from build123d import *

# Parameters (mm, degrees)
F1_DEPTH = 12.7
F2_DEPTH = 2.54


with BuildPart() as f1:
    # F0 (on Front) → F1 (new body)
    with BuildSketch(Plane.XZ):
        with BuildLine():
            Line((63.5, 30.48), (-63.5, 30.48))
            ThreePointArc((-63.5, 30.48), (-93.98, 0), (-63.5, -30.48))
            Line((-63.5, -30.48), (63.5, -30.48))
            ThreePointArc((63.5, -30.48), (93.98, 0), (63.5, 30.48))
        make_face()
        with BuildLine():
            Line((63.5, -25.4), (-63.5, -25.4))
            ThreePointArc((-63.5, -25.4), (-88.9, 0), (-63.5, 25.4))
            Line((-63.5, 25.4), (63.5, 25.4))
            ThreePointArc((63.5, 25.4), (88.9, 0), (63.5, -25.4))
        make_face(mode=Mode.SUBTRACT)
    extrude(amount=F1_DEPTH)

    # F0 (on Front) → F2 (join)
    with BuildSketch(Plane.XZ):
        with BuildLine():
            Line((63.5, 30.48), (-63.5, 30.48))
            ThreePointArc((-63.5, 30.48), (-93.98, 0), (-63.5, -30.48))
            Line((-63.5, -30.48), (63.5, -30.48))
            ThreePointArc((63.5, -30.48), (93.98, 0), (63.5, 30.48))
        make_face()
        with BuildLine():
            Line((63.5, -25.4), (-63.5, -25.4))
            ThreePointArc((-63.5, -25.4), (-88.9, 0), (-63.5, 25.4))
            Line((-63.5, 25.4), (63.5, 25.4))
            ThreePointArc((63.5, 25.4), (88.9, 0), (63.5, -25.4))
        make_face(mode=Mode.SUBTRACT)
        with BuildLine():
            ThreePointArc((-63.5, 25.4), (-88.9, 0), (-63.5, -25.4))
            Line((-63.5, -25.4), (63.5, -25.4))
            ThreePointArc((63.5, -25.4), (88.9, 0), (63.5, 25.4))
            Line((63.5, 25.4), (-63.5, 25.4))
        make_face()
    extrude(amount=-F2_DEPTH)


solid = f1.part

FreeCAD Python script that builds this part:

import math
import FreeCAD as App
import Part
import Sketcher
Q = App.Units.Quantity

doc = App.newDocument("Part")
body = doc.addObject("PartDesign::Body", "Body")

# Sketch on XZ plane
sketch1 = doc.addObject("Sketcher::SketchObject", "Sketch")
body.addObject(sketch1)
sketch1.AttachmentSupport = (doc.XZ_Plane, [""])
sketch1.MapMode = "FlatFace"
sketch1.addGeometry(Part.LineSegment(App.Vector(64, 30, 0), App.Vector(-64, 30, 0)), False)
sketch1.addGeometry(Part.ArcOfCircle(Part.Circle(App.Vector(-64, 0, 0), App.Vector(0, 0, 1), 30), math.radians(90), math.radians(270)), False)
sketch1.addGeometry(Part.LineSegment(App.Vector(-64, -30, 0), App.Vector(64, -30, 0)), False)
sketch1.addGeometry(Part.ArcOfCircle(Part.Circle(App.Vector(64, 0, 0), App.Vector(0, 0, 1), 30), math.radians(-90), math.radians(90)), False)
sketch1.addGeometry(Part.ArcOfCircle(Part.Circle(App.Vector(64, 0, 0), App.Vector(0, 0, 1), 25), math.radians(-90), math.radians(90)), False)
sketch1.addGeometry(Part.LineSegment(App.Vector(64, -25, 0), App.Vector(-64, -25, 0)), False)
sketch1.addGeometry(Part.ArcOfCircle(Part.Circle(App.Vector(-64, 0, 0), App.Vector(0, 0, 1), 25), math.radians(90), math.radians(270)), False)
sketch1.addGeometry(Part.LineSegment(App.Vector(-64, 25, 0), App.Vector(64, 25, 0)), False)
sketch1.addConstraint(Sketcher.Constraint("Tangent", 0, 2, 1, 1))
sketch1.addConstraint(Sketcher.Constraint("Tangent", 1, 2, 2, 1))
sketch1.addConstraint(Sketcher.Constraint("Tangent", 2, 2, 3, 1))
sketch1.addConstraint(Sketcher.Constraint("Tangent", 3, 2, 0, 1))
sketch1.addConstraint(Sketcher.Constraint("Tangent", 4, 1, 5, 1))
sketch1.addConstraint(Sketcher.Constraint("Tangent", 5, 2, 6, 2))
sketch1.addConstraint(Sketcher.Constraint("Tangent", 6, 1, 7, 1))
sketch1.addConstraint(Sketcher.Constraint("Tangent", 7, 2, 4, 2))
sketch1.addConstraint(Sketcher.Constraint("Horizontal", 0))
sketch1.addConstraint(Sketcher.Constraint("Horizontal", 2))
sketch1.addConstraint(Sketcher.Constraint("Horizontal", 5))
sketch1.addConstraint(Sketcher.Constraint("Horizontal", 7))
sketch1.addConstraint(Sketcher.Constraint("Coincident", 4, 3, 3, 3))
sketch1.addConstraint(Sketcher.Constraint("Symmetric", 1, 3, 3, 3, -1, 1))
sketch1.addConstraint(Sketcher.Constraint("Vertical", 6, 3, 0, 2))
sketch1.addConstraint(Sketcher.Constraint("Radius", 4, Q("1 in")))
sketch1.addConstraint(Sketcher.Constraint("Radius", 1, Q("1.2 in")))
sketch1.addConstraint(Sketcher.Constraint("DistanceX", 0, 2, 0, 1, Q("5 in")))
pad1 = doc.addObject("PartDesign::Pad", "Pad")
body.addObject(pad1)
pad1.Profile = sketch1
pad1.Length = Q("0.5 in")

# Sketch on XZ plane
sketch2 = doc.addObject("Sketcher::SketchObject", "Sketch001")
body.addObject(sketch2)
sketch2.AttachmentSupport = (doc.XZ_Plane, [""])
sketch2.MapMode = "FlatFace"
sketch2.addGeometry(Part.LineSegment(App.Vector(64, 30, 0), App.Vector(-64, 30, 0)), False)
sketch2.addGeometry(Part.ArcOfCircle(Part.Circle(App.Vector(-64, 0, 0), App.Vector(0, 0, 1), 30), math.radians(90), math.radians(270)), False)
sketch2.addGeometry(Part.LineSegment(App.Vector(-64, -30, 0), App.Vector(64, -30, 0)), False)
sketch2.addGeometry(Part.ArcOfCircle(Part.Circle(App.Vector(64, 0, 0), App.Vector(0, 0, 1), 30), math.radians(-90), math.radians(90)), False)
sketch2.addConstraint(Sketcher.Constraint("Tangent", 0, 2, 1, 1))
sketch2.addConstraint(Sketcher.Constraint("Tangent", 1, 2, 2, 1))
sketch2.addConstraint(Sketcher.Constraint("Tangent", 2, 2, 3, 1))
sketch2.addConstraint(Sketcher.Constraint("Tangent", 3, 2, 0, 1))
sketch2.addConstraint(Sketcher.Constraint("Horizontal", 0))
sketch2.addConstraint(Sketcher.Constraint("Horizontal", 2))
sketch2.addConstraint(Sketcher.Constraint("Symmetric", 1, 3, 3, 3, -1, 1))
sketch2.addConstraint(Sketcher.Constraint("Radius", 1, Q("1.2 in")))
sketch2.addConstraint(Sketcher.Constraint("DistanceX", 0, 2, 0, 1, Q("5 in")))
pad2 = doc.addObject("PartDesign::Pad", "Pad001")
body.addObject(pad2)
pad2.Profile = sketch2
pad2.Length = Q("0.1 in")
pad2.Reversed = True

doc.recompute()
